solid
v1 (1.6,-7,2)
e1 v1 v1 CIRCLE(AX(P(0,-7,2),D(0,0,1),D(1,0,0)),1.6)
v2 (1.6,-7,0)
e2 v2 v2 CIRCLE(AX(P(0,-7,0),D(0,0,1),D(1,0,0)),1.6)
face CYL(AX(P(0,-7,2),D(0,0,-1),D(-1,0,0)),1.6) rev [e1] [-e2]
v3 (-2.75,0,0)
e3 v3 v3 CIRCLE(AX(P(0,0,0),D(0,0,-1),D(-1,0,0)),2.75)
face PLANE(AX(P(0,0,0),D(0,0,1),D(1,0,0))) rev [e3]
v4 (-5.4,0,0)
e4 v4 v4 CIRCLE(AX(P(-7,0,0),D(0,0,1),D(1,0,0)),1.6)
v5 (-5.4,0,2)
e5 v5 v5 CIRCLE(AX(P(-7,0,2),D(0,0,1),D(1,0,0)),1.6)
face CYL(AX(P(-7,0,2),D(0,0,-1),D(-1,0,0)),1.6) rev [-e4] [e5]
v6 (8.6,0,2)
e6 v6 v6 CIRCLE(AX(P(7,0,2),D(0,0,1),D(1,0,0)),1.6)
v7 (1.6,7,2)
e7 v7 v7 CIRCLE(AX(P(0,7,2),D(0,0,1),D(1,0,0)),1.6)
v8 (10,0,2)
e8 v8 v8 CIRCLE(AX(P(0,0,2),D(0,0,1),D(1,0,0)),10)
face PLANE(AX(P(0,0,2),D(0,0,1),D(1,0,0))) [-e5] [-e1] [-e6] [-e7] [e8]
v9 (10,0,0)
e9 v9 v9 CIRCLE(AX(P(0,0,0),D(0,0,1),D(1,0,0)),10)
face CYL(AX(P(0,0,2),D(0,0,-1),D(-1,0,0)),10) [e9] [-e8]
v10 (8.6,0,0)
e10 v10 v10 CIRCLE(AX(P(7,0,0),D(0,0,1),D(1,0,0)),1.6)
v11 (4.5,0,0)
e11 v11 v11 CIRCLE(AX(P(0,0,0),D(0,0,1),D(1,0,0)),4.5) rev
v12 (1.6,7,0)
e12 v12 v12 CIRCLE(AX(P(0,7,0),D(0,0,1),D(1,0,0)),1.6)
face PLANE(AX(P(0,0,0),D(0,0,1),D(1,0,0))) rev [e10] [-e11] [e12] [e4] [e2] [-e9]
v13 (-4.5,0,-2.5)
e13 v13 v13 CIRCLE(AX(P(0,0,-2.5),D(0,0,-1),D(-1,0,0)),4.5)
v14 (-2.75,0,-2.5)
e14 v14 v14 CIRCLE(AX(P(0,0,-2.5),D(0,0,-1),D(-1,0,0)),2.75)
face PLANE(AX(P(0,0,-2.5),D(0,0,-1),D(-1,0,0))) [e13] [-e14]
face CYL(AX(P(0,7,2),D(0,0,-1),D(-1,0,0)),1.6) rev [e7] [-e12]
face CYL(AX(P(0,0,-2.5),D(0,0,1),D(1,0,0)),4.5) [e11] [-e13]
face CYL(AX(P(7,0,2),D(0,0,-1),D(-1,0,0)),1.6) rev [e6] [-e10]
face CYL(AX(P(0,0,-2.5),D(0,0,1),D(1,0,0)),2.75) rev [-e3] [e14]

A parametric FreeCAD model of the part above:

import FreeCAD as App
import Part
import Sketcher
from FreeCAD import Vector
Q = App.Units.Quantity

doc = App.newDocument("Part")
body = doc.addObject("PartDesign::Body", "Body")

sketch1 = body.newObject("Sketcher::SketchObject", "Sketch")
sketch1.AttachmentSupport = (doc.getObject("XY_Plane"), [""])
sketch1.MapMode = "FlatFace"
sketch1.addGeometry([
    Part.Circle(Vector(0, 0, 0), Vector(0, 0, 1), 10),
    Part.Circle(Vector(0, -7, 0), Vector(0, 0, 1), 1.6),
    Part.Circle(Vector(-7, 0, 0), Vector(0, 0, 1), 1.6),
    Part.Circle(Vector(0, 7, 0), Vector(0, 0, 1), 1.6),
    Part.Circle(Vector(7, 0, 0), Vector(0, 0, 1), 1.6),
], False)
sketch1.addConstraint([
    Sketcher.Constraint("Coincident", 0, 3, -1, 1),
    Sketcher.Constraint("Equal", 1, 2),
    Sketcher.Constraint("Equal", 2, 3),
    Sketcher.Constraint("Equal", 3, 4),
    Sketcher.Constraint("Symmetric", 1, 3, 3, 3, -1, 1),
    Sketcher.Constraint("Symmetric", 2, 3, 4, 3, -1, 1),
    Sketcher.Constraint("PointOnObject", 1, 3, -2),
    Sketcher.Constraint("PointOnObject", 2, 3, -1),
    Sketcher.Constraint("Diameter", 0, Q("20 mm")),
    Sketcher.Constraint("Diameter", 1, Q("3.2 mm")),
    Sketcher.Constraint("DistanceY", 1, 3, -1, 1, Q("7 mm")),
    Sketcher.Constraint("DistanceX", 2, 3, -1, 1, Q("7 mm")),
])
pad1 = body.newObject("PartDesign::Pad", "Pad")
pad1.Profile = sketch1
pad1.Length = 2

sketch2 = body.newObject("Sketcher::SketchObject", "Sketch001")
sketch2.AttachmentSupport = (doc.getObject("XY_Plane"), [""])
sketch2.MapMode = "FlatFace"
sketch2.addGeometry([
    Part.Circle(Vector(0, 0, 0), Vector(0, 0, 1), 4.5),
    Part.Circle(Vector(0, 0, 0), Vector(0, 0, 1), 2.8),
], False)
sketch2.addConstraint([
    Sketcher.Constraint("Coincident", 0, 3, -1, 1),
    Sketcher.Constraint("Coincident", 1, 3, -1, 1),
    Sketcher.Constraint("Diameter", 0, Q("9 mm")),
    Sketcher.Constraint("Diameter", 1, Q("5.5 mm")),
])
pad2 = body.newObject("PartDesign::Pad", "Pad001")
pad2.Profile = sketch2
pad2.Length = 2.5
pad2.Reversed = True

doc.recompute()
